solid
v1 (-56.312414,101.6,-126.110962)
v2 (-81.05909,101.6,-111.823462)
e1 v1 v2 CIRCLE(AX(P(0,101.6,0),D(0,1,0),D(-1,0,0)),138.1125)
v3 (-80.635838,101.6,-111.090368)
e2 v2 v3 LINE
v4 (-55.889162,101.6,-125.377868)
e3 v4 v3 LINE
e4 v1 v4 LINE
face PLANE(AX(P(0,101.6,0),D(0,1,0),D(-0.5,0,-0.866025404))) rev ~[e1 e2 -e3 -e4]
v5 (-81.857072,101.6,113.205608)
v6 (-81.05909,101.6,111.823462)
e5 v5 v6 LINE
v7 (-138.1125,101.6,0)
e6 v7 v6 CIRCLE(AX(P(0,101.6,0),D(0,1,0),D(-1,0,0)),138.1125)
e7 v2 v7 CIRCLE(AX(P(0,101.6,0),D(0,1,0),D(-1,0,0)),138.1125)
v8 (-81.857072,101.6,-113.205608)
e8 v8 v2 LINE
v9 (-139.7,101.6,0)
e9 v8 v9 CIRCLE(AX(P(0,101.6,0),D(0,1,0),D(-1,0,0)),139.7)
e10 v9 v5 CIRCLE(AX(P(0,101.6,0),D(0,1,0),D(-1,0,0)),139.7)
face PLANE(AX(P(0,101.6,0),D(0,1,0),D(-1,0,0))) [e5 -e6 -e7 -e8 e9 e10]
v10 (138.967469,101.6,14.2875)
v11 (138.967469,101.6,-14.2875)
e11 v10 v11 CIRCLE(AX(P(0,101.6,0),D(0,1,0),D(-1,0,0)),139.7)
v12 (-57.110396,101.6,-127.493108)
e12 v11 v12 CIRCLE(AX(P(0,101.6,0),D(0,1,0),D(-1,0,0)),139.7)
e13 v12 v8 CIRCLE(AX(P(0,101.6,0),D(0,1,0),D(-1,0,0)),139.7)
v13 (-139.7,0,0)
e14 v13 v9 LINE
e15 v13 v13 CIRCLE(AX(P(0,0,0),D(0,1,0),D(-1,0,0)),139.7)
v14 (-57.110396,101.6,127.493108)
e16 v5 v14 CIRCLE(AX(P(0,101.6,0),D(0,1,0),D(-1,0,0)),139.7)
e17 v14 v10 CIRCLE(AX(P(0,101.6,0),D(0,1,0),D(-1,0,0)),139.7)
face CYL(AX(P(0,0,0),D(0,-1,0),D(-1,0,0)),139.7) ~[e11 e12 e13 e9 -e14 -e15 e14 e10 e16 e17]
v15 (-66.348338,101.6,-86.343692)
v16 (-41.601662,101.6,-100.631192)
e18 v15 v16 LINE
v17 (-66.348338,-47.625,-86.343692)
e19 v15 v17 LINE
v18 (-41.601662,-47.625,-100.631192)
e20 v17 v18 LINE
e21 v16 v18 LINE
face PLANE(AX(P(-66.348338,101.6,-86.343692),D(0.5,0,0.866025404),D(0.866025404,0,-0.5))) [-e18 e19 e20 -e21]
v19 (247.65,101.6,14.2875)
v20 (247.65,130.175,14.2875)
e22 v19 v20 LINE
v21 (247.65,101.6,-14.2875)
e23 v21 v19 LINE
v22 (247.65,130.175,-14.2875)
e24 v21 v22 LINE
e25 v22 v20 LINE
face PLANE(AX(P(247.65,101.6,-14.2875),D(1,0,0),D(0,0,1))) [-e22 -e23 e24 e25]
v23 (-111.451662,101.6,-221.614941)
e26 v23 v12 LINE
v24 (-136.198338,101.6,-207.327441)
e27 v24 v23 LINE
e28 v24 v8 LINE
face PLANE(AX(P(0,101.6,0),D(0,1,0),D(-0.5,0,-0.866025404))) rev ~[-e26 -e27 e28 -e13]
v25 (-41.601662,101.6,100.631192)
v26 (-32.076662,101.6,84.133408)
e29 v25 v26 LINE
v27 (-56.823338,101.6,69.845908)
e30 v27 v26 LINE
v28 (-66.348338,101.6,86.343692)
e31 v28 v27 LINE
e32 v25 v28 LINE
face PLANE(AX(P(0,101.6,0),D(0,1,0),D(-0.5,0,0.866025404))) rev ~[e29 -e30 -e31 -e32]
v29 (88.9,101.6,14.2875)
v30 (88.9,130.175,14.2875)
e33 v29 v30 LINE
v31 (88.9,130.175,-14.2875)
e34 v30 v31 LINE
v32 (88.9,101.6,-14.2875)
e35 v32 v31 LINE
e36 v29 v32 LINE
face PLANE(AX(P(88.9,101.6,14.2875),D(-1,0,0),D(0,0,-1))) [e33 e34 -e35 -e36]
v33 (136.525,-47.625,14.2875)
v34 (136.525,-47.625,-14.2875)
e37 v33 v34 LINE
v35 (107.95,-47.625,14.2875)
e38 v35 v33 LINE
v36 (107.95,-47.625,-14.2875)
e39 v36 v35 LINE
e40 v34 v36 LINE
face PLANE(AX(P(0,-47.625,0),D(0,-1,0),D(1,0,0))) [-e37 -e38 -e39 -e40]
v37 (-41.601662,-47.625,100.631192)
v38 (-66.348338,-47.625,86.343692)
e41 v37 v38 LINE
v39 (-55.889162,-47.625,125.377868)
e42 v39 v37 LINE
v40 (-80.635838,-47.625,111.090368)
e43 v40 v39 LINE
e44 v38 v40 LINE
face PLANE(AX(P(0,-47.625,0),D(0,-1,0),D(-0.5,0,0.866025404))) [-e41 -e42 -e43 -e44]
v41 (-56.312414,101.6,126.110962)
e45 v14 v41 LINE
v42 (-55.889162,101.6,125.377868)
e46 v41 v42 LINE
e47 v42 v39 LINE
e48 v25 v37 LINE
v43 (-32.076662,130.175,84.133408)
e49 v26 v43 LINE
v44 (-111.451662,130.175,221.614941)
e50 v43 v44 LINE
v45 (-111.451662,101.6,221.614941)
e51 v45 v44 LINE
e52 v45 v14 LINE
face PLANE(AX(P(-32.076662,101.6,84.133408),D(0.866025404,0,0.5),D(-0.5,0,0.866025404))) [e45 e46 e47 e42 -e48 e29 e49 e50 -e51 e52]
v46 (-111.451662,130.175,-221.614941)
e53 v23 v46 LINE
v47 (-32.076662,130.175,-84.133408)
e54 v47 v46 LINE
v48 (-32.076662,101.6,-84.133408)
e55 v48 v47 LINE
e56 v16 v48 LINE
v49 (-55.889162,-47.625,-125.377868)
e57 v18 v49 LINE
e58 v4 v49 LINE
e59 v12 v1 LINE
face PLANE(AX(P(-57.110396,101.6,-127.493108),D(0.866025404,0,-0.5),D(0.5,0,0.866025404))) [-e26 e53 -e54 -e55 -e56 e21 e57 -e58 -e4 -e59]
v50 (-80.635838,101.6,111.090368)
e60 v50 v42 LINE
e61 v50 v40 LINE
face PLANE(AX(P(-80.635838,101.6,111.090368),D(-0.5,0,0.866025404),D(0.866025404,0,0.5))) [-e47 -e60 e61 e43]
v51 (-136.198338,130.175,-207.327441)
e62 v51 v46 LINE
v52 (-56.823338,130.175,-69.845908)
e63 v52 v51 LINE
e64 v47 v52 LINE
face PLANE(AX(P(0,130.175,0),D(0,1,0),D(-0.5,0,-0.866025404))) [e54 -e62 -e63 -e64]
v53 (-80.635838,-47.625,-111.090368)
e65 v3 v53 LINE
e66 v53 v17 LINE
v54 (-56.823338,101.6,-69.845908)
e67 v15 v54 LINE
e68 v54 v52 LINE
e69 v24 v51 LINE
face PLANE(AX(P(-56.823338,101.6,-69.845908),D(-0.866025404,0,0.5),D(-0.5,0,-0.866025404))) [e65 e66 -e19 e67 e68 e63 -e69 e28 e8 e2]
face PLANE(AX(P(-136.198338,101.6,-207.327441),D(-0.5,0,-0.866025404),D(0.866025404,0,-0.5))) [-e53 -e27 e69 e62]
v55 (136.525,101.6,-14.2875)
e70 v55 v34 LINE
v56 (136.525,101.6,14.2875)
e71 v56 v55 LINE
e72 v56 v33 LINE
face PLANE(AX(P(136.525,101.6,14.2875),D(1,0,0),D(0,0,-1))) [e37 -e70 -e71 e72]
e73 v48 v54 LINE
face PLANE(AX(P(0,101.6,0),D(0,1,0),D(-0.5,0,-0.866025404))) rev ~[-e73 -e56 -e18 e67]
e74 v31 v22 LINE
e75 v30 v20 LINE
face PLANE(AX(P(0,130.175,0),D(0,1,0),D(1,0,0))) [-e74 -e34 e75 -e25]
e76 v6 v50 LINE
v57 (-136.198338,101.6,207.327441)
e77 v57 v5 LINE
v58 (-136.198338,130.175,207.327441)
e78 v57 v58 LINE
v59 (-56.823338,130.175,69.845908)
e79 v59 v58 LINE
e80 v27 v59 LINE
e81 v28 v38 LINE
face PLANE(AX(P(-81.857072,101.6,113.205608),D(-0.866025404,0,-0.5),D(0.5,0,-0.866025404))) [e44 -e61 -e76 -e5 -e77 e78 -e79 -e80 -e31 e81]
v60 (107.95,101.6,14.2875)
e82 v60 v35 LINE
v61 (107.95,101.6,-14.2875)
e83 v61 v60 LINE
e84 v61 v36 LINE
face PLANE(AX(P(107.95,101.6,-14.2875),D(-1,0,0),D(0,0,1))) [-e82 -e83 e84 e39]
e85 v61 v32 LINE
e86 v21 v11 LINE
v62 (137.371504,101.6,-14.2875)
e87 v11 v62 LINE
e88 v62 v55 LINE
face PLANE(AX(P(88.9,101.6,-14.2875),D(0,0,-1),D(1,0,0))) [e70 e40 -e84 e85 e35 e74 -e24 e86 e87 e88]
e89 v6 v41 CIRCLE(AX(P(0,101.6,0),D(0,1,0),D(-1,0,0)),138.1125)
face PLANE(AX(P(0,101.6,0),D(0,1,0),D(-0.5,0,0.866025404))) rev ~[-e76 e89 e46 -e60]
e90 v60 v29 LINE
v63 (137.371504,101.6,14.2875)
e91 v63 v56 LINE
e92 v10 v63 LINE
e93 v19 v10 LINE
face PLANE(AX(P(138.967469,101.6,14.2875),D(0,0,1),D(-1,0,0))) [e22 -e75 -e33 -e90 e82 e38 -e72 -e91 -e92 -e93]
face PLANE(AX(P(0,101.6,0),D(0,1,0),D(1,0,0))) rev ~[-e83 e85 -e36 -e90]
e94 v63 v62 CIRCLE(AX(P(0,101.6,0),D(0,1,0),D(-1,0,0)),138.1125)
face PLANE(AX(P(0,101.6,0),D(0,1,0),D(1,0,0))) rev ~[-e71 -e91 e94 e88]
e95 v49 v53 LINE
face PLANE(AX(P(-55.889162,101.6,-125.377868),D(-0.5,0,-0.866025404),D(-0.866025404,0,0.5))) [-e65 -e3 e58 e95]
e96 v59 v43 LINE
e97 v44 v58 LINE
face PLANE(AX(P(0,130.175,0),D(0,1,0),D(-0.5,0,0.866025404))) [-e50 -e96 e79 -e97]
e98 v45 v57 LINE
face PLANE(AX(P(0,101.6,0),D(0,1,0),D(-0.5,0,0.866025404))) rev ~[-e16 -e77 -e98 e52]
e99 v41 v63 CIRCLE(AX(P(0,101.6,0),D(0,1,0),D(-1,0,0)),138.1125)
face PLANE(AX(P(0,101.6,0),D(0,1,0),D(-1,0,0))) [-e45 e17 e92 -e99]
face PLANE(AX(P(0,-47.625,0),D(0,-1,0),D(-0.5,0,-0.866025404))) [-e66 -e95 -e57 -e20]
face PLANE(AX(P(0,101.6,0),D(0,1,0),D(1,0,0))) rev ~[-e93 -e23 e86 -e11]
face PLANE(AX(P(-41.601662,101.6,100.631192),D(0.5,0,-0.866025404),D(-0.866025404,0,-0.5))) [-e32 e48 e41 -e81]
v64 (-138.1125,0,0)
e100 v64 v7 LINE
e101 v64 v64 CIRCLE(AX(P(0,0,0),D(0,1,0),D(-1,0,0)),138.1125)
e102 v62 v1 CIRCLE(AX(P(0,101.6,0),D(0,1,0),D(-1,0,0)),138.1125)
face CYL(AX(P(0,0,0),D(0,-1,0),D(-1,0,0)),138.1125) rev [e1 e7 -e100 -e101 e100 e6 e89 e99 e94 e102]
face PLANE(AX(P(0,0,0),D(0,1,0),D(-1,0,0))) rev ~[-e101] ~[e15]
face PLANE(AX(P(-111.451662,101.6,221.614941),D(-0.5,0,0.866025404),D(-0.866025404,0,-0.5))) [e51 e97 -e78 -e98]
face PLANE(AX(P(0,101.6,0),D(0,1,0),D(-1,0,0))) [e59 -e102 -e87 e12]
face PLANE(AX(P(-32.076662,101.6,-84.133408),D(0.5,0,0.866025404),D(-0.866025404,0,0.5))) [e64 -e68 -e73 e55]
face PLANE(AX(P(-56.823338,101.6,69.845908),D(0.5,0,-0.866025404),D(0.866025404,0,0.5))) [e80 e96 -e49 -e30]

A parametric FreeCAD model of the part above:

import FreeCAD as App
import Part
import Sketcher

V = App.Vector
Q = App.Units.Quantity


def add_polygon(sketch, points):
    """Adds a closed chain of lines whose ends are joined by coincident constraints."""
    first, n = sketch.GeometryCount, len(points)
    for a, b in zip(points, points[1:] + points[:1]):
        sketch.addGeometry(Part.LineSegment(App.Vector(*a, 0), App.Vector(*b, 0)), False)
    for i in range(n):
        sketch.addConstraint(Sketcher.Constraint("Coincident", first + i, 2, first + (i + 1) % n, 1))

doc = App.newDocument("Part")
params = doc.addObject("Spreadsheet::Sheet", "Params")
for row, (alias, value) in enumerate([
    ("sketch1_diameter", "11 in"),
    ("sketch1_diameter2", "10.875 in"),
    ("pad1_length", "4 in"),
    ("sketch2_width", "6.25 in"),
    ("sketch2_height", "1.125 in"),
    ("pad2_length", "1.125 in"),
    ("sketch3_width", "1.125 in"),
    ("pad3_length", "5.875 in"),
], start=1):
    params.set(f"A{row}", alias)
    params.set(f"B{row}", "=" + value)
    params.setAlias(f"B{row}", alias)

body = doc.addObject("PartDesign::Body", "Body")

# Sketch on XZ plane
sketch1 = body.newObject("Sketcher::SketchObject", "Sketch")
sketch1.AttachmentSupport = (doc.getObject("XZ_Plane"), [""])
sketch1.MapMode = "FlatFace"
sketch1.addGeometry(Part.Circle(V(0, 0, 0), V(0, 0, 1), 140), False)
sketch1.addGeometry(Part.Circle(V(0, 0, 0), V(0, 0, 1), 138), False)
sketch1.addConstraint(Sketcher.Constraint("Coincident", 0, 3, -1, 1))
sketch1.addConstraint(Sketcher.Constraint("Coincident", 1, 3, -1, 1))
sketch1.addConstraint(Sketcher.Constraint("Diameter", 0, Q("11 in")))
sketch1.addConstraint(Sketcher.Constraint("Diameter", 1, Q("10.875 in")))
sketch1.setExpression("Constraints[2]", "Params.sketch1_diameter")
sketch1.setExpression("Constraints[3]", "Params.sketch1_diameter2")
pad1 = body.newObject("PartDesign::Pad", "Pad")
pad1.Profile = sketch1
pad1.setExpression("Length", "Params.pad1_length")
pad1.Reversed = True

# Sketch on XZ plane
sketch2 = body.newObject("Sketcher::SketchObject", "Sketch001")
sketch2.AttachmentSupport = (doc.getObject("XZ_Plane"), [""])
sketch2.MapMode = "FlatFace"
sketch2.AttachmentOffset = App.Placement(V(0, 0, -4 * 25.4), App.Rotation())
add_polygon(sketch2, [(89, -14), (89, 14), (248, 14), (248, -14)])  # lines 0-3
sketch2.addConstraint(Sketcher.Constraint("Vertical", 0))
sketch2.addConstraint(Sketcher.Constraint("Horizontal", 1))
sketch2.addConstraint(Sketcher.Constraint("Vertical", 2))
sketch2.addConstraint(Sketcher.Constraint("Horizontal", 3))
sketch2.addConstraint(Sketcher.Constraint("DistanceX", 1, 1, 1, 2, Q("6.25 in")))
sketch2.addConstraint(Sketcher.Constraint("DistanceY", 0, 1, 0, 2, Q("1.125 in")))
sketch2.addConstraint(Sketcher.Constraint("DistanceX", -1, 1, 0, 2, Q("3.5 in")))
sketch2.addConstraint(Sketcher.Constraint("DistanceY", -1, 1, 0, 2, Q("0.5625 in")))
sketch2.setExpression("Constraints[8]", "Params.sketch2_width")
sketch2.setExpression("Constraints[9]", "Params.sketch2_height")
pad2 = body.newObject("PartDesign::Pad", "Pad001")
pad2.Profile = sketch2
pad2.setExpression("Length", "Params.pad2_length")
pad2.Reversed = True

# Sketch on XZ plane
sketch3 = body.newObject("Sketcher::SketchObject", "Sketch002")
sketch3.AttachmentSupport = (doc.getObject("XZ_Plane"), [""])
sketch3.MapMode = "FlatFace"
sketch3.AttachmentOffset = App.Placement(V(0, 0, -4 * 25.4), App.Rotation())
add_polygon(sketch3, [(108, -14), (137, -14), (137, 14), (108, 14)])  # lines 0-3
sketch3.addConstraint(Sketcher.Constraint("Horizontal", 0))
sketch3.addConstraint(Sketcher.Constraint("Vertical", 1))
sketch3.addConstraint(Sketcher.Constraint("Horizontal", 2))
sketch3.addConstraint(Sketcher.Constraint("Vertical", 3))
sketch3.addConstraint(Sketcher.Constraint("Equal", 2, 1))
sketch3.addConstraint(Sketcher.Constraint("DistanceX", 0, 1, 0, 2, Q("1.125 in")))
sketch3.addConstraint(Sketcher.Constraint("DistanceX", -1, 1, 2, 2, Q("4.25 in")))
sketch3.addConstraint(Sketcher.Constraint("DistanceY", 0, 2, -1, 1, Q("0.5625 in")))
sketch3.setExpression("Constraints[9]", "Params.sketch3_width")
pad3 = body.newObject("PartDesign::Pad", "Pad002")
pad3.Profile = sketch3
pad3.setExpression("Length", "Params.pad3_length")
doc.recompute()

polarpattern = body.newObject("PartDesign::PolarPattern", "PolarPattern")
polarpattern.Originals = [pad2, pad3]
polarpattern.Axis = (doc.getObject("Y_Axis"), [""])
polarpattern.Angle = 360
polarpattern.Occurrences = 3
body.Tip = polarpattern

doc.recompute()
